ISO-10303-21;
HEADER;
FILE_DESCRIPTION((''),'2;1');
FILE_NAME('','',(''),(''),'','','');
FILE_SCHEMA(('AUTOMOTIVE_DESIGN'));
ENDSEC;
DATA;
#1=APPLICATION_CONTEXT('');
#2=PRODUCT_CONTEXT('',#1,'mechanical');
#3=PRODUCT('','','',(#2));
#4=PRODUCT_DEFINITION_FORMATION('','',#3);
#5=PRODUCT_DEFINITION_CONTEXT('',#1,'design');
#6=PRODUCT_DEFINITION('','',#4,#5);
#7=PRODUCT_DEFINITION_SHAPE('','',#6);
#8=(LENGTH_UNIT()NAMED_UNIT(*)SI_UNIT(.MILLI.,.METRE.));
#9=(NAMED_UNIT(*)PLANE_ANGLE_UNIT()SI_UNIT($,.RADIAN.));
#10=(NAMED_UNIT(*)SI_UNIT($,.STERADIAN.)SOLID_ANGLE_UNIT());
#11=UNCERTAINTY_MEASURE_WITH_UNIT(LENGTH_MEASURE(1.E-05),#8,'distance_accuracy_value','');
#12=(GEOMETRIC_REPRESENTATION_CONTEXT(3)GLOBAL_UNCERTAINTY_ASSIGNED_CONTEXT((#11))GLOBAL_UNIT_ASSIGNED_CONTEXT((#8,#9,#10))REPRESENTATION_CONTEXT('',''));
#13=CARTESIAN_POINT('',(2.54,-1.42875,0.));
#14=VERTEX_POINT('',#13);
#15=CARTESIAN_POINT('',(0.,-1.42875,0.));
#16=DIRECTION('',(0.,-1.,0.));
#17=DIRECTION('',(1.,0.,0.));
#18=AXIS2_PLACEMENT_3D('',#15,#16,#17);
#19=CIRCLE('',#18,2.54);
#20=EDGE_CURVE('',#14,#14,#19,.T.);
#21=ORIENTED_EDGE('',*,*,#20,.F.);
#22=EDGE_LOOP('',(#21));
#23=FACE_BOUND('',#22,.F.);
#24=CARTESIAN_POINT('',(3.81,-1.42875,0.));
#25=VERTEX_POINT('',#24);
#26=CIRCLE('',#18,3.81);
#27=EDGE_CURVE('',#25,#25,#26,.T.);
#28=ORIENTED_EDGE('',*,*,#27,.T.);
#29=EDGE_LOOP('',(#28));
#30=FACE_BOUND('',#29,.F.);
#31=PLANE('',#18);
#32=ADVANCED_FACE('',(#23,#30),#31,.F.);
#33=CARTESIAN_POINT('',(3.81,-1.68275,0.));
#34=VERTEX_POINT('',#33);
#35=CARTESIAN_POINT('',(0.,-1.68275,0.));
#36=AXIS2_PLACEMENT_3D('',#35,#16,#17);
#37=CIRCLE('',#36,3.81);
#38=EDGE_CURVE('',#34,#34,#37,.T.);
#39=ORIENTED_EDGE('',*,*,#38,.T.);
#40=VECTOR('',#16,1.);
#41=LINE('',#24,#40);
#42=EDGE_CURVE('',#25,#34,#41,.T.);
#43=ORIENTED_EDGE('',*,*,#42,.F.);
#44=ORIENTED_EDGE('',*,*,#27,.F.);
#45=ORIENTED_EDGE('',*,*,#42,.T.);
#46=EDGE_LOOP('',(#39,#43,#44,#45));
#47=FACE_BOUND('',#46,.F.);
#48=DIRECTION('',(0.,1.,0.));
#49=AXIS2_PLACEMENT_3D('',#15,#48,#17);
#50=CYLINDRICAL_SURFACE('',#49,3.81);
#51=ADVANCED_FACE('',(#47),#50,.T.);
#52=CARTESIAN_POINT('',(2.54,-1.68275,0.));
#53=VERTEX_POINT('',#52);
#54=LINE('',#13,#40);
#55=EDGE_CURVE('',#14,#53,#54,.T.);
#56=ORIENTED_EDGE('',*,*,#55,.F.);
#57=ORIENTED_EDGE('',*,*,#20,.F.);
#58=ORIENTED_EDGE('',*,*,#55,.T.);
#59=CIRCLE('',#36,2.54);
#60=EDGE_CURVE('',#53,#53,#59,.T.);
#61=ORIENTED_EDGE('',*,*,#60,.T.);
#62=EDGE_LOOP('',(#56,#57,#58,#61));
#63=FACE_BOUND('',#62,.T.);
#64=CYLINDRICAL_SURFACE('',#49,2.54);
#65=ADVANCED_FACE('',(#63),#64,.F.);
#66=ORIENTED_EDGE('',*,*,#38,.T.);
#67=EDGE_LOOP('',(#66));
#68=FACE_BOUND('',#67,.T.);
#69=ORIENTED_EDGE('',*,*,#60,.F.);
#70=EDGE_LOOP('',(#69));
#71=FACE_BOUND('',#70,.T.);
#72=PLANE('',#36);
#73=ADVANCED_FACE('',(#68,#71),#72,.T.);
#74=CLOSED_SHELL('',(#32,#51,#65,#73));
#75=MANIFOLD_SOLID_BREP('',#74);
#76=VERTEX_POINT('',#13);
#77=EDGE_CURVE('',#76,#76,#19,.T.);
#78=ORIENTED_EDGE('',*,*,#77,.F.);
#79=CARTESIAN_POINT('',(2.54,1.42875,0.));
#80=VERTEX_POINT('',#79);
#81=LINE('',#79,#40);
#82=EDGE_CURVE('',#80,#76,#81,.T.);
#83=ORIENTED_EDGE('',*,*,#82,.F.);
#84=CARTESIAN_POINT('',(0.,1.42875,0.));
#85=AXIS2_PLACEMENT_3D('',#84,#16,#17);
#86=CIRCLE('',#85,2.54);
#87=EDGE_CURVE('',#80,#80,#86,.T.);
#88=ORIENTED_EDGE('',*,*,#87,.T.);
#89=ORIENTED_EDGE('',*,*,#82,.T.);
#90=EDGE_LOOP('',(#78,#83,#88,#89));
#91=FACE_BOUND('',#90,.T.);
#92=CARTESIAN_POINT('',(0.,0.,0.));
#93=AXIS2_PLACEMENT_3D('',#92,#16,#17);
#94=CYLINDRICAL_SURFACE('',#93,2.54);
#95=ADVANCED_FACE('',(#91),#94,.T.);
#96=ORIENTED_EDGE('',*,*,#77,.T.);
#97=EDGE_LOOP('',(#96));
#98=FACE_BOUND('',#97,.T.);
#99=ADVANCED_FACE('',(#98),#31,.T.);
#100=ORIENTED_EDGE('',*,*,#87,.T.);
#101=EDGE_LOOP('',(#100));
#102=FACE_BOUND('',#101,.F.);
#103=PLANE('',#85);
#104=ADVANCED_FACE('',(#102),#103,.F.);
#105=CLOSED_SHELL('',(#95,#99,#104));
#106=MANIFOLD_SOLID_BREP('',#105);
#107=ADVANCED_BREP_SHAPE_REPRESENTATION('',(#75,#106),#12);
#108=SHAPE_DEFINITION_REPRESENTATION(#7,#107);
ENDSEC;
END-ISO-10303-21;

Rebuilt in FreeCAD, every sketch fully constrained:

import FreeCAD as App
import Part
import Sketcher

V = App.Vector
Q = App.Units.Quantity

doc = App.newDocument("Part")
params = doc.addObject("Spreadsheet::Sheet", "Params")
for row, (alias, value) in enumerate([
    ("sketch1_diameter", "0.2 in"),
    ("pad1_length", "0.1125 in"),
    ("sketch2_diameter", "0.3 in"),
    ("sketch2_diameter2", "0.2 in"),
    ("pad2_length", "0.01 in"),
], start=1):
    params.set(f"A{row}", alias)
    params.set(f"B{row}", "=" + value)
    params.setAlias(f"B{row}", alias)

body = doc.addObject("PartDesign::Body", "Body")
body.AllowCompound = True

sketch1 = body.newObject("Sketcher::SketchObject", "Sketch")
sketch1.AttachmentSupport = (doc.getObject("XZ_Plane"), [""])
sketch1.MapMode = "FlatFace"
sketch1.addGeometry(Part.Circle(V(0, 0, 0), V(0, 0, 1), 2.5), False)
sketch1.addConstraint([
    Sketcher.Constraint("Coincident", 0, 3, -1, 1),
    Sketcher.Constraint("Diameter", 0, Q("0.2 in")),
])
sketch1.setExpression("Constraints[1]", "Params.sketch1_diameter")
pad1 = body.newObject("PartDesign::Pad", "Pad")
pad1.Profile = sketch1
pad1.setExpression("Length", "Params.pad1_length")
pad1.Midplane = True

sketch2 = body.newObject("Sketcher::SketchObject", "Sketch001")
sketch2.AttachmentSupport = (doc.getObject("XZ_Plane"), [""])
sketch2.MapMode = "FlatFace"
sketch2.AttachmentOffset = App.Placement(V(0, 0, 1.42875), App.Rotation())
sketch2.addGeometry([
    Part.Circle(V(0, 0, 0), V(0, 0, 1), 3.8),
    Part.Circle(V(0, 0, 0), V(0, 0, 1), 2.5),
], False)
sketch2.addConstraint([
    Sketcher.Constraint("Coincident", 0, 3, -1, 1),
    Sketcher.Constraint("Coincident", 1, 3, -1, 1),
    Sketcher.Constraint("Diameter", 0, Q("0.3 in")),
    Sketcher.Constraint("Diameter", 1, Q("0.2 in")),
])
sketch2.setExpression("Constraints[2]", "Params.sketch2_diameter")
sketch2.setExpression("Constraints[3]", "Params.sketch2_diameter2")
pad2 = body.newObject("PartDesign::Pad", "Pad001")
pad2.Profile = sketch2
pad2.setExpression("Length", "Params.pad2_length")

doc.recompute()
